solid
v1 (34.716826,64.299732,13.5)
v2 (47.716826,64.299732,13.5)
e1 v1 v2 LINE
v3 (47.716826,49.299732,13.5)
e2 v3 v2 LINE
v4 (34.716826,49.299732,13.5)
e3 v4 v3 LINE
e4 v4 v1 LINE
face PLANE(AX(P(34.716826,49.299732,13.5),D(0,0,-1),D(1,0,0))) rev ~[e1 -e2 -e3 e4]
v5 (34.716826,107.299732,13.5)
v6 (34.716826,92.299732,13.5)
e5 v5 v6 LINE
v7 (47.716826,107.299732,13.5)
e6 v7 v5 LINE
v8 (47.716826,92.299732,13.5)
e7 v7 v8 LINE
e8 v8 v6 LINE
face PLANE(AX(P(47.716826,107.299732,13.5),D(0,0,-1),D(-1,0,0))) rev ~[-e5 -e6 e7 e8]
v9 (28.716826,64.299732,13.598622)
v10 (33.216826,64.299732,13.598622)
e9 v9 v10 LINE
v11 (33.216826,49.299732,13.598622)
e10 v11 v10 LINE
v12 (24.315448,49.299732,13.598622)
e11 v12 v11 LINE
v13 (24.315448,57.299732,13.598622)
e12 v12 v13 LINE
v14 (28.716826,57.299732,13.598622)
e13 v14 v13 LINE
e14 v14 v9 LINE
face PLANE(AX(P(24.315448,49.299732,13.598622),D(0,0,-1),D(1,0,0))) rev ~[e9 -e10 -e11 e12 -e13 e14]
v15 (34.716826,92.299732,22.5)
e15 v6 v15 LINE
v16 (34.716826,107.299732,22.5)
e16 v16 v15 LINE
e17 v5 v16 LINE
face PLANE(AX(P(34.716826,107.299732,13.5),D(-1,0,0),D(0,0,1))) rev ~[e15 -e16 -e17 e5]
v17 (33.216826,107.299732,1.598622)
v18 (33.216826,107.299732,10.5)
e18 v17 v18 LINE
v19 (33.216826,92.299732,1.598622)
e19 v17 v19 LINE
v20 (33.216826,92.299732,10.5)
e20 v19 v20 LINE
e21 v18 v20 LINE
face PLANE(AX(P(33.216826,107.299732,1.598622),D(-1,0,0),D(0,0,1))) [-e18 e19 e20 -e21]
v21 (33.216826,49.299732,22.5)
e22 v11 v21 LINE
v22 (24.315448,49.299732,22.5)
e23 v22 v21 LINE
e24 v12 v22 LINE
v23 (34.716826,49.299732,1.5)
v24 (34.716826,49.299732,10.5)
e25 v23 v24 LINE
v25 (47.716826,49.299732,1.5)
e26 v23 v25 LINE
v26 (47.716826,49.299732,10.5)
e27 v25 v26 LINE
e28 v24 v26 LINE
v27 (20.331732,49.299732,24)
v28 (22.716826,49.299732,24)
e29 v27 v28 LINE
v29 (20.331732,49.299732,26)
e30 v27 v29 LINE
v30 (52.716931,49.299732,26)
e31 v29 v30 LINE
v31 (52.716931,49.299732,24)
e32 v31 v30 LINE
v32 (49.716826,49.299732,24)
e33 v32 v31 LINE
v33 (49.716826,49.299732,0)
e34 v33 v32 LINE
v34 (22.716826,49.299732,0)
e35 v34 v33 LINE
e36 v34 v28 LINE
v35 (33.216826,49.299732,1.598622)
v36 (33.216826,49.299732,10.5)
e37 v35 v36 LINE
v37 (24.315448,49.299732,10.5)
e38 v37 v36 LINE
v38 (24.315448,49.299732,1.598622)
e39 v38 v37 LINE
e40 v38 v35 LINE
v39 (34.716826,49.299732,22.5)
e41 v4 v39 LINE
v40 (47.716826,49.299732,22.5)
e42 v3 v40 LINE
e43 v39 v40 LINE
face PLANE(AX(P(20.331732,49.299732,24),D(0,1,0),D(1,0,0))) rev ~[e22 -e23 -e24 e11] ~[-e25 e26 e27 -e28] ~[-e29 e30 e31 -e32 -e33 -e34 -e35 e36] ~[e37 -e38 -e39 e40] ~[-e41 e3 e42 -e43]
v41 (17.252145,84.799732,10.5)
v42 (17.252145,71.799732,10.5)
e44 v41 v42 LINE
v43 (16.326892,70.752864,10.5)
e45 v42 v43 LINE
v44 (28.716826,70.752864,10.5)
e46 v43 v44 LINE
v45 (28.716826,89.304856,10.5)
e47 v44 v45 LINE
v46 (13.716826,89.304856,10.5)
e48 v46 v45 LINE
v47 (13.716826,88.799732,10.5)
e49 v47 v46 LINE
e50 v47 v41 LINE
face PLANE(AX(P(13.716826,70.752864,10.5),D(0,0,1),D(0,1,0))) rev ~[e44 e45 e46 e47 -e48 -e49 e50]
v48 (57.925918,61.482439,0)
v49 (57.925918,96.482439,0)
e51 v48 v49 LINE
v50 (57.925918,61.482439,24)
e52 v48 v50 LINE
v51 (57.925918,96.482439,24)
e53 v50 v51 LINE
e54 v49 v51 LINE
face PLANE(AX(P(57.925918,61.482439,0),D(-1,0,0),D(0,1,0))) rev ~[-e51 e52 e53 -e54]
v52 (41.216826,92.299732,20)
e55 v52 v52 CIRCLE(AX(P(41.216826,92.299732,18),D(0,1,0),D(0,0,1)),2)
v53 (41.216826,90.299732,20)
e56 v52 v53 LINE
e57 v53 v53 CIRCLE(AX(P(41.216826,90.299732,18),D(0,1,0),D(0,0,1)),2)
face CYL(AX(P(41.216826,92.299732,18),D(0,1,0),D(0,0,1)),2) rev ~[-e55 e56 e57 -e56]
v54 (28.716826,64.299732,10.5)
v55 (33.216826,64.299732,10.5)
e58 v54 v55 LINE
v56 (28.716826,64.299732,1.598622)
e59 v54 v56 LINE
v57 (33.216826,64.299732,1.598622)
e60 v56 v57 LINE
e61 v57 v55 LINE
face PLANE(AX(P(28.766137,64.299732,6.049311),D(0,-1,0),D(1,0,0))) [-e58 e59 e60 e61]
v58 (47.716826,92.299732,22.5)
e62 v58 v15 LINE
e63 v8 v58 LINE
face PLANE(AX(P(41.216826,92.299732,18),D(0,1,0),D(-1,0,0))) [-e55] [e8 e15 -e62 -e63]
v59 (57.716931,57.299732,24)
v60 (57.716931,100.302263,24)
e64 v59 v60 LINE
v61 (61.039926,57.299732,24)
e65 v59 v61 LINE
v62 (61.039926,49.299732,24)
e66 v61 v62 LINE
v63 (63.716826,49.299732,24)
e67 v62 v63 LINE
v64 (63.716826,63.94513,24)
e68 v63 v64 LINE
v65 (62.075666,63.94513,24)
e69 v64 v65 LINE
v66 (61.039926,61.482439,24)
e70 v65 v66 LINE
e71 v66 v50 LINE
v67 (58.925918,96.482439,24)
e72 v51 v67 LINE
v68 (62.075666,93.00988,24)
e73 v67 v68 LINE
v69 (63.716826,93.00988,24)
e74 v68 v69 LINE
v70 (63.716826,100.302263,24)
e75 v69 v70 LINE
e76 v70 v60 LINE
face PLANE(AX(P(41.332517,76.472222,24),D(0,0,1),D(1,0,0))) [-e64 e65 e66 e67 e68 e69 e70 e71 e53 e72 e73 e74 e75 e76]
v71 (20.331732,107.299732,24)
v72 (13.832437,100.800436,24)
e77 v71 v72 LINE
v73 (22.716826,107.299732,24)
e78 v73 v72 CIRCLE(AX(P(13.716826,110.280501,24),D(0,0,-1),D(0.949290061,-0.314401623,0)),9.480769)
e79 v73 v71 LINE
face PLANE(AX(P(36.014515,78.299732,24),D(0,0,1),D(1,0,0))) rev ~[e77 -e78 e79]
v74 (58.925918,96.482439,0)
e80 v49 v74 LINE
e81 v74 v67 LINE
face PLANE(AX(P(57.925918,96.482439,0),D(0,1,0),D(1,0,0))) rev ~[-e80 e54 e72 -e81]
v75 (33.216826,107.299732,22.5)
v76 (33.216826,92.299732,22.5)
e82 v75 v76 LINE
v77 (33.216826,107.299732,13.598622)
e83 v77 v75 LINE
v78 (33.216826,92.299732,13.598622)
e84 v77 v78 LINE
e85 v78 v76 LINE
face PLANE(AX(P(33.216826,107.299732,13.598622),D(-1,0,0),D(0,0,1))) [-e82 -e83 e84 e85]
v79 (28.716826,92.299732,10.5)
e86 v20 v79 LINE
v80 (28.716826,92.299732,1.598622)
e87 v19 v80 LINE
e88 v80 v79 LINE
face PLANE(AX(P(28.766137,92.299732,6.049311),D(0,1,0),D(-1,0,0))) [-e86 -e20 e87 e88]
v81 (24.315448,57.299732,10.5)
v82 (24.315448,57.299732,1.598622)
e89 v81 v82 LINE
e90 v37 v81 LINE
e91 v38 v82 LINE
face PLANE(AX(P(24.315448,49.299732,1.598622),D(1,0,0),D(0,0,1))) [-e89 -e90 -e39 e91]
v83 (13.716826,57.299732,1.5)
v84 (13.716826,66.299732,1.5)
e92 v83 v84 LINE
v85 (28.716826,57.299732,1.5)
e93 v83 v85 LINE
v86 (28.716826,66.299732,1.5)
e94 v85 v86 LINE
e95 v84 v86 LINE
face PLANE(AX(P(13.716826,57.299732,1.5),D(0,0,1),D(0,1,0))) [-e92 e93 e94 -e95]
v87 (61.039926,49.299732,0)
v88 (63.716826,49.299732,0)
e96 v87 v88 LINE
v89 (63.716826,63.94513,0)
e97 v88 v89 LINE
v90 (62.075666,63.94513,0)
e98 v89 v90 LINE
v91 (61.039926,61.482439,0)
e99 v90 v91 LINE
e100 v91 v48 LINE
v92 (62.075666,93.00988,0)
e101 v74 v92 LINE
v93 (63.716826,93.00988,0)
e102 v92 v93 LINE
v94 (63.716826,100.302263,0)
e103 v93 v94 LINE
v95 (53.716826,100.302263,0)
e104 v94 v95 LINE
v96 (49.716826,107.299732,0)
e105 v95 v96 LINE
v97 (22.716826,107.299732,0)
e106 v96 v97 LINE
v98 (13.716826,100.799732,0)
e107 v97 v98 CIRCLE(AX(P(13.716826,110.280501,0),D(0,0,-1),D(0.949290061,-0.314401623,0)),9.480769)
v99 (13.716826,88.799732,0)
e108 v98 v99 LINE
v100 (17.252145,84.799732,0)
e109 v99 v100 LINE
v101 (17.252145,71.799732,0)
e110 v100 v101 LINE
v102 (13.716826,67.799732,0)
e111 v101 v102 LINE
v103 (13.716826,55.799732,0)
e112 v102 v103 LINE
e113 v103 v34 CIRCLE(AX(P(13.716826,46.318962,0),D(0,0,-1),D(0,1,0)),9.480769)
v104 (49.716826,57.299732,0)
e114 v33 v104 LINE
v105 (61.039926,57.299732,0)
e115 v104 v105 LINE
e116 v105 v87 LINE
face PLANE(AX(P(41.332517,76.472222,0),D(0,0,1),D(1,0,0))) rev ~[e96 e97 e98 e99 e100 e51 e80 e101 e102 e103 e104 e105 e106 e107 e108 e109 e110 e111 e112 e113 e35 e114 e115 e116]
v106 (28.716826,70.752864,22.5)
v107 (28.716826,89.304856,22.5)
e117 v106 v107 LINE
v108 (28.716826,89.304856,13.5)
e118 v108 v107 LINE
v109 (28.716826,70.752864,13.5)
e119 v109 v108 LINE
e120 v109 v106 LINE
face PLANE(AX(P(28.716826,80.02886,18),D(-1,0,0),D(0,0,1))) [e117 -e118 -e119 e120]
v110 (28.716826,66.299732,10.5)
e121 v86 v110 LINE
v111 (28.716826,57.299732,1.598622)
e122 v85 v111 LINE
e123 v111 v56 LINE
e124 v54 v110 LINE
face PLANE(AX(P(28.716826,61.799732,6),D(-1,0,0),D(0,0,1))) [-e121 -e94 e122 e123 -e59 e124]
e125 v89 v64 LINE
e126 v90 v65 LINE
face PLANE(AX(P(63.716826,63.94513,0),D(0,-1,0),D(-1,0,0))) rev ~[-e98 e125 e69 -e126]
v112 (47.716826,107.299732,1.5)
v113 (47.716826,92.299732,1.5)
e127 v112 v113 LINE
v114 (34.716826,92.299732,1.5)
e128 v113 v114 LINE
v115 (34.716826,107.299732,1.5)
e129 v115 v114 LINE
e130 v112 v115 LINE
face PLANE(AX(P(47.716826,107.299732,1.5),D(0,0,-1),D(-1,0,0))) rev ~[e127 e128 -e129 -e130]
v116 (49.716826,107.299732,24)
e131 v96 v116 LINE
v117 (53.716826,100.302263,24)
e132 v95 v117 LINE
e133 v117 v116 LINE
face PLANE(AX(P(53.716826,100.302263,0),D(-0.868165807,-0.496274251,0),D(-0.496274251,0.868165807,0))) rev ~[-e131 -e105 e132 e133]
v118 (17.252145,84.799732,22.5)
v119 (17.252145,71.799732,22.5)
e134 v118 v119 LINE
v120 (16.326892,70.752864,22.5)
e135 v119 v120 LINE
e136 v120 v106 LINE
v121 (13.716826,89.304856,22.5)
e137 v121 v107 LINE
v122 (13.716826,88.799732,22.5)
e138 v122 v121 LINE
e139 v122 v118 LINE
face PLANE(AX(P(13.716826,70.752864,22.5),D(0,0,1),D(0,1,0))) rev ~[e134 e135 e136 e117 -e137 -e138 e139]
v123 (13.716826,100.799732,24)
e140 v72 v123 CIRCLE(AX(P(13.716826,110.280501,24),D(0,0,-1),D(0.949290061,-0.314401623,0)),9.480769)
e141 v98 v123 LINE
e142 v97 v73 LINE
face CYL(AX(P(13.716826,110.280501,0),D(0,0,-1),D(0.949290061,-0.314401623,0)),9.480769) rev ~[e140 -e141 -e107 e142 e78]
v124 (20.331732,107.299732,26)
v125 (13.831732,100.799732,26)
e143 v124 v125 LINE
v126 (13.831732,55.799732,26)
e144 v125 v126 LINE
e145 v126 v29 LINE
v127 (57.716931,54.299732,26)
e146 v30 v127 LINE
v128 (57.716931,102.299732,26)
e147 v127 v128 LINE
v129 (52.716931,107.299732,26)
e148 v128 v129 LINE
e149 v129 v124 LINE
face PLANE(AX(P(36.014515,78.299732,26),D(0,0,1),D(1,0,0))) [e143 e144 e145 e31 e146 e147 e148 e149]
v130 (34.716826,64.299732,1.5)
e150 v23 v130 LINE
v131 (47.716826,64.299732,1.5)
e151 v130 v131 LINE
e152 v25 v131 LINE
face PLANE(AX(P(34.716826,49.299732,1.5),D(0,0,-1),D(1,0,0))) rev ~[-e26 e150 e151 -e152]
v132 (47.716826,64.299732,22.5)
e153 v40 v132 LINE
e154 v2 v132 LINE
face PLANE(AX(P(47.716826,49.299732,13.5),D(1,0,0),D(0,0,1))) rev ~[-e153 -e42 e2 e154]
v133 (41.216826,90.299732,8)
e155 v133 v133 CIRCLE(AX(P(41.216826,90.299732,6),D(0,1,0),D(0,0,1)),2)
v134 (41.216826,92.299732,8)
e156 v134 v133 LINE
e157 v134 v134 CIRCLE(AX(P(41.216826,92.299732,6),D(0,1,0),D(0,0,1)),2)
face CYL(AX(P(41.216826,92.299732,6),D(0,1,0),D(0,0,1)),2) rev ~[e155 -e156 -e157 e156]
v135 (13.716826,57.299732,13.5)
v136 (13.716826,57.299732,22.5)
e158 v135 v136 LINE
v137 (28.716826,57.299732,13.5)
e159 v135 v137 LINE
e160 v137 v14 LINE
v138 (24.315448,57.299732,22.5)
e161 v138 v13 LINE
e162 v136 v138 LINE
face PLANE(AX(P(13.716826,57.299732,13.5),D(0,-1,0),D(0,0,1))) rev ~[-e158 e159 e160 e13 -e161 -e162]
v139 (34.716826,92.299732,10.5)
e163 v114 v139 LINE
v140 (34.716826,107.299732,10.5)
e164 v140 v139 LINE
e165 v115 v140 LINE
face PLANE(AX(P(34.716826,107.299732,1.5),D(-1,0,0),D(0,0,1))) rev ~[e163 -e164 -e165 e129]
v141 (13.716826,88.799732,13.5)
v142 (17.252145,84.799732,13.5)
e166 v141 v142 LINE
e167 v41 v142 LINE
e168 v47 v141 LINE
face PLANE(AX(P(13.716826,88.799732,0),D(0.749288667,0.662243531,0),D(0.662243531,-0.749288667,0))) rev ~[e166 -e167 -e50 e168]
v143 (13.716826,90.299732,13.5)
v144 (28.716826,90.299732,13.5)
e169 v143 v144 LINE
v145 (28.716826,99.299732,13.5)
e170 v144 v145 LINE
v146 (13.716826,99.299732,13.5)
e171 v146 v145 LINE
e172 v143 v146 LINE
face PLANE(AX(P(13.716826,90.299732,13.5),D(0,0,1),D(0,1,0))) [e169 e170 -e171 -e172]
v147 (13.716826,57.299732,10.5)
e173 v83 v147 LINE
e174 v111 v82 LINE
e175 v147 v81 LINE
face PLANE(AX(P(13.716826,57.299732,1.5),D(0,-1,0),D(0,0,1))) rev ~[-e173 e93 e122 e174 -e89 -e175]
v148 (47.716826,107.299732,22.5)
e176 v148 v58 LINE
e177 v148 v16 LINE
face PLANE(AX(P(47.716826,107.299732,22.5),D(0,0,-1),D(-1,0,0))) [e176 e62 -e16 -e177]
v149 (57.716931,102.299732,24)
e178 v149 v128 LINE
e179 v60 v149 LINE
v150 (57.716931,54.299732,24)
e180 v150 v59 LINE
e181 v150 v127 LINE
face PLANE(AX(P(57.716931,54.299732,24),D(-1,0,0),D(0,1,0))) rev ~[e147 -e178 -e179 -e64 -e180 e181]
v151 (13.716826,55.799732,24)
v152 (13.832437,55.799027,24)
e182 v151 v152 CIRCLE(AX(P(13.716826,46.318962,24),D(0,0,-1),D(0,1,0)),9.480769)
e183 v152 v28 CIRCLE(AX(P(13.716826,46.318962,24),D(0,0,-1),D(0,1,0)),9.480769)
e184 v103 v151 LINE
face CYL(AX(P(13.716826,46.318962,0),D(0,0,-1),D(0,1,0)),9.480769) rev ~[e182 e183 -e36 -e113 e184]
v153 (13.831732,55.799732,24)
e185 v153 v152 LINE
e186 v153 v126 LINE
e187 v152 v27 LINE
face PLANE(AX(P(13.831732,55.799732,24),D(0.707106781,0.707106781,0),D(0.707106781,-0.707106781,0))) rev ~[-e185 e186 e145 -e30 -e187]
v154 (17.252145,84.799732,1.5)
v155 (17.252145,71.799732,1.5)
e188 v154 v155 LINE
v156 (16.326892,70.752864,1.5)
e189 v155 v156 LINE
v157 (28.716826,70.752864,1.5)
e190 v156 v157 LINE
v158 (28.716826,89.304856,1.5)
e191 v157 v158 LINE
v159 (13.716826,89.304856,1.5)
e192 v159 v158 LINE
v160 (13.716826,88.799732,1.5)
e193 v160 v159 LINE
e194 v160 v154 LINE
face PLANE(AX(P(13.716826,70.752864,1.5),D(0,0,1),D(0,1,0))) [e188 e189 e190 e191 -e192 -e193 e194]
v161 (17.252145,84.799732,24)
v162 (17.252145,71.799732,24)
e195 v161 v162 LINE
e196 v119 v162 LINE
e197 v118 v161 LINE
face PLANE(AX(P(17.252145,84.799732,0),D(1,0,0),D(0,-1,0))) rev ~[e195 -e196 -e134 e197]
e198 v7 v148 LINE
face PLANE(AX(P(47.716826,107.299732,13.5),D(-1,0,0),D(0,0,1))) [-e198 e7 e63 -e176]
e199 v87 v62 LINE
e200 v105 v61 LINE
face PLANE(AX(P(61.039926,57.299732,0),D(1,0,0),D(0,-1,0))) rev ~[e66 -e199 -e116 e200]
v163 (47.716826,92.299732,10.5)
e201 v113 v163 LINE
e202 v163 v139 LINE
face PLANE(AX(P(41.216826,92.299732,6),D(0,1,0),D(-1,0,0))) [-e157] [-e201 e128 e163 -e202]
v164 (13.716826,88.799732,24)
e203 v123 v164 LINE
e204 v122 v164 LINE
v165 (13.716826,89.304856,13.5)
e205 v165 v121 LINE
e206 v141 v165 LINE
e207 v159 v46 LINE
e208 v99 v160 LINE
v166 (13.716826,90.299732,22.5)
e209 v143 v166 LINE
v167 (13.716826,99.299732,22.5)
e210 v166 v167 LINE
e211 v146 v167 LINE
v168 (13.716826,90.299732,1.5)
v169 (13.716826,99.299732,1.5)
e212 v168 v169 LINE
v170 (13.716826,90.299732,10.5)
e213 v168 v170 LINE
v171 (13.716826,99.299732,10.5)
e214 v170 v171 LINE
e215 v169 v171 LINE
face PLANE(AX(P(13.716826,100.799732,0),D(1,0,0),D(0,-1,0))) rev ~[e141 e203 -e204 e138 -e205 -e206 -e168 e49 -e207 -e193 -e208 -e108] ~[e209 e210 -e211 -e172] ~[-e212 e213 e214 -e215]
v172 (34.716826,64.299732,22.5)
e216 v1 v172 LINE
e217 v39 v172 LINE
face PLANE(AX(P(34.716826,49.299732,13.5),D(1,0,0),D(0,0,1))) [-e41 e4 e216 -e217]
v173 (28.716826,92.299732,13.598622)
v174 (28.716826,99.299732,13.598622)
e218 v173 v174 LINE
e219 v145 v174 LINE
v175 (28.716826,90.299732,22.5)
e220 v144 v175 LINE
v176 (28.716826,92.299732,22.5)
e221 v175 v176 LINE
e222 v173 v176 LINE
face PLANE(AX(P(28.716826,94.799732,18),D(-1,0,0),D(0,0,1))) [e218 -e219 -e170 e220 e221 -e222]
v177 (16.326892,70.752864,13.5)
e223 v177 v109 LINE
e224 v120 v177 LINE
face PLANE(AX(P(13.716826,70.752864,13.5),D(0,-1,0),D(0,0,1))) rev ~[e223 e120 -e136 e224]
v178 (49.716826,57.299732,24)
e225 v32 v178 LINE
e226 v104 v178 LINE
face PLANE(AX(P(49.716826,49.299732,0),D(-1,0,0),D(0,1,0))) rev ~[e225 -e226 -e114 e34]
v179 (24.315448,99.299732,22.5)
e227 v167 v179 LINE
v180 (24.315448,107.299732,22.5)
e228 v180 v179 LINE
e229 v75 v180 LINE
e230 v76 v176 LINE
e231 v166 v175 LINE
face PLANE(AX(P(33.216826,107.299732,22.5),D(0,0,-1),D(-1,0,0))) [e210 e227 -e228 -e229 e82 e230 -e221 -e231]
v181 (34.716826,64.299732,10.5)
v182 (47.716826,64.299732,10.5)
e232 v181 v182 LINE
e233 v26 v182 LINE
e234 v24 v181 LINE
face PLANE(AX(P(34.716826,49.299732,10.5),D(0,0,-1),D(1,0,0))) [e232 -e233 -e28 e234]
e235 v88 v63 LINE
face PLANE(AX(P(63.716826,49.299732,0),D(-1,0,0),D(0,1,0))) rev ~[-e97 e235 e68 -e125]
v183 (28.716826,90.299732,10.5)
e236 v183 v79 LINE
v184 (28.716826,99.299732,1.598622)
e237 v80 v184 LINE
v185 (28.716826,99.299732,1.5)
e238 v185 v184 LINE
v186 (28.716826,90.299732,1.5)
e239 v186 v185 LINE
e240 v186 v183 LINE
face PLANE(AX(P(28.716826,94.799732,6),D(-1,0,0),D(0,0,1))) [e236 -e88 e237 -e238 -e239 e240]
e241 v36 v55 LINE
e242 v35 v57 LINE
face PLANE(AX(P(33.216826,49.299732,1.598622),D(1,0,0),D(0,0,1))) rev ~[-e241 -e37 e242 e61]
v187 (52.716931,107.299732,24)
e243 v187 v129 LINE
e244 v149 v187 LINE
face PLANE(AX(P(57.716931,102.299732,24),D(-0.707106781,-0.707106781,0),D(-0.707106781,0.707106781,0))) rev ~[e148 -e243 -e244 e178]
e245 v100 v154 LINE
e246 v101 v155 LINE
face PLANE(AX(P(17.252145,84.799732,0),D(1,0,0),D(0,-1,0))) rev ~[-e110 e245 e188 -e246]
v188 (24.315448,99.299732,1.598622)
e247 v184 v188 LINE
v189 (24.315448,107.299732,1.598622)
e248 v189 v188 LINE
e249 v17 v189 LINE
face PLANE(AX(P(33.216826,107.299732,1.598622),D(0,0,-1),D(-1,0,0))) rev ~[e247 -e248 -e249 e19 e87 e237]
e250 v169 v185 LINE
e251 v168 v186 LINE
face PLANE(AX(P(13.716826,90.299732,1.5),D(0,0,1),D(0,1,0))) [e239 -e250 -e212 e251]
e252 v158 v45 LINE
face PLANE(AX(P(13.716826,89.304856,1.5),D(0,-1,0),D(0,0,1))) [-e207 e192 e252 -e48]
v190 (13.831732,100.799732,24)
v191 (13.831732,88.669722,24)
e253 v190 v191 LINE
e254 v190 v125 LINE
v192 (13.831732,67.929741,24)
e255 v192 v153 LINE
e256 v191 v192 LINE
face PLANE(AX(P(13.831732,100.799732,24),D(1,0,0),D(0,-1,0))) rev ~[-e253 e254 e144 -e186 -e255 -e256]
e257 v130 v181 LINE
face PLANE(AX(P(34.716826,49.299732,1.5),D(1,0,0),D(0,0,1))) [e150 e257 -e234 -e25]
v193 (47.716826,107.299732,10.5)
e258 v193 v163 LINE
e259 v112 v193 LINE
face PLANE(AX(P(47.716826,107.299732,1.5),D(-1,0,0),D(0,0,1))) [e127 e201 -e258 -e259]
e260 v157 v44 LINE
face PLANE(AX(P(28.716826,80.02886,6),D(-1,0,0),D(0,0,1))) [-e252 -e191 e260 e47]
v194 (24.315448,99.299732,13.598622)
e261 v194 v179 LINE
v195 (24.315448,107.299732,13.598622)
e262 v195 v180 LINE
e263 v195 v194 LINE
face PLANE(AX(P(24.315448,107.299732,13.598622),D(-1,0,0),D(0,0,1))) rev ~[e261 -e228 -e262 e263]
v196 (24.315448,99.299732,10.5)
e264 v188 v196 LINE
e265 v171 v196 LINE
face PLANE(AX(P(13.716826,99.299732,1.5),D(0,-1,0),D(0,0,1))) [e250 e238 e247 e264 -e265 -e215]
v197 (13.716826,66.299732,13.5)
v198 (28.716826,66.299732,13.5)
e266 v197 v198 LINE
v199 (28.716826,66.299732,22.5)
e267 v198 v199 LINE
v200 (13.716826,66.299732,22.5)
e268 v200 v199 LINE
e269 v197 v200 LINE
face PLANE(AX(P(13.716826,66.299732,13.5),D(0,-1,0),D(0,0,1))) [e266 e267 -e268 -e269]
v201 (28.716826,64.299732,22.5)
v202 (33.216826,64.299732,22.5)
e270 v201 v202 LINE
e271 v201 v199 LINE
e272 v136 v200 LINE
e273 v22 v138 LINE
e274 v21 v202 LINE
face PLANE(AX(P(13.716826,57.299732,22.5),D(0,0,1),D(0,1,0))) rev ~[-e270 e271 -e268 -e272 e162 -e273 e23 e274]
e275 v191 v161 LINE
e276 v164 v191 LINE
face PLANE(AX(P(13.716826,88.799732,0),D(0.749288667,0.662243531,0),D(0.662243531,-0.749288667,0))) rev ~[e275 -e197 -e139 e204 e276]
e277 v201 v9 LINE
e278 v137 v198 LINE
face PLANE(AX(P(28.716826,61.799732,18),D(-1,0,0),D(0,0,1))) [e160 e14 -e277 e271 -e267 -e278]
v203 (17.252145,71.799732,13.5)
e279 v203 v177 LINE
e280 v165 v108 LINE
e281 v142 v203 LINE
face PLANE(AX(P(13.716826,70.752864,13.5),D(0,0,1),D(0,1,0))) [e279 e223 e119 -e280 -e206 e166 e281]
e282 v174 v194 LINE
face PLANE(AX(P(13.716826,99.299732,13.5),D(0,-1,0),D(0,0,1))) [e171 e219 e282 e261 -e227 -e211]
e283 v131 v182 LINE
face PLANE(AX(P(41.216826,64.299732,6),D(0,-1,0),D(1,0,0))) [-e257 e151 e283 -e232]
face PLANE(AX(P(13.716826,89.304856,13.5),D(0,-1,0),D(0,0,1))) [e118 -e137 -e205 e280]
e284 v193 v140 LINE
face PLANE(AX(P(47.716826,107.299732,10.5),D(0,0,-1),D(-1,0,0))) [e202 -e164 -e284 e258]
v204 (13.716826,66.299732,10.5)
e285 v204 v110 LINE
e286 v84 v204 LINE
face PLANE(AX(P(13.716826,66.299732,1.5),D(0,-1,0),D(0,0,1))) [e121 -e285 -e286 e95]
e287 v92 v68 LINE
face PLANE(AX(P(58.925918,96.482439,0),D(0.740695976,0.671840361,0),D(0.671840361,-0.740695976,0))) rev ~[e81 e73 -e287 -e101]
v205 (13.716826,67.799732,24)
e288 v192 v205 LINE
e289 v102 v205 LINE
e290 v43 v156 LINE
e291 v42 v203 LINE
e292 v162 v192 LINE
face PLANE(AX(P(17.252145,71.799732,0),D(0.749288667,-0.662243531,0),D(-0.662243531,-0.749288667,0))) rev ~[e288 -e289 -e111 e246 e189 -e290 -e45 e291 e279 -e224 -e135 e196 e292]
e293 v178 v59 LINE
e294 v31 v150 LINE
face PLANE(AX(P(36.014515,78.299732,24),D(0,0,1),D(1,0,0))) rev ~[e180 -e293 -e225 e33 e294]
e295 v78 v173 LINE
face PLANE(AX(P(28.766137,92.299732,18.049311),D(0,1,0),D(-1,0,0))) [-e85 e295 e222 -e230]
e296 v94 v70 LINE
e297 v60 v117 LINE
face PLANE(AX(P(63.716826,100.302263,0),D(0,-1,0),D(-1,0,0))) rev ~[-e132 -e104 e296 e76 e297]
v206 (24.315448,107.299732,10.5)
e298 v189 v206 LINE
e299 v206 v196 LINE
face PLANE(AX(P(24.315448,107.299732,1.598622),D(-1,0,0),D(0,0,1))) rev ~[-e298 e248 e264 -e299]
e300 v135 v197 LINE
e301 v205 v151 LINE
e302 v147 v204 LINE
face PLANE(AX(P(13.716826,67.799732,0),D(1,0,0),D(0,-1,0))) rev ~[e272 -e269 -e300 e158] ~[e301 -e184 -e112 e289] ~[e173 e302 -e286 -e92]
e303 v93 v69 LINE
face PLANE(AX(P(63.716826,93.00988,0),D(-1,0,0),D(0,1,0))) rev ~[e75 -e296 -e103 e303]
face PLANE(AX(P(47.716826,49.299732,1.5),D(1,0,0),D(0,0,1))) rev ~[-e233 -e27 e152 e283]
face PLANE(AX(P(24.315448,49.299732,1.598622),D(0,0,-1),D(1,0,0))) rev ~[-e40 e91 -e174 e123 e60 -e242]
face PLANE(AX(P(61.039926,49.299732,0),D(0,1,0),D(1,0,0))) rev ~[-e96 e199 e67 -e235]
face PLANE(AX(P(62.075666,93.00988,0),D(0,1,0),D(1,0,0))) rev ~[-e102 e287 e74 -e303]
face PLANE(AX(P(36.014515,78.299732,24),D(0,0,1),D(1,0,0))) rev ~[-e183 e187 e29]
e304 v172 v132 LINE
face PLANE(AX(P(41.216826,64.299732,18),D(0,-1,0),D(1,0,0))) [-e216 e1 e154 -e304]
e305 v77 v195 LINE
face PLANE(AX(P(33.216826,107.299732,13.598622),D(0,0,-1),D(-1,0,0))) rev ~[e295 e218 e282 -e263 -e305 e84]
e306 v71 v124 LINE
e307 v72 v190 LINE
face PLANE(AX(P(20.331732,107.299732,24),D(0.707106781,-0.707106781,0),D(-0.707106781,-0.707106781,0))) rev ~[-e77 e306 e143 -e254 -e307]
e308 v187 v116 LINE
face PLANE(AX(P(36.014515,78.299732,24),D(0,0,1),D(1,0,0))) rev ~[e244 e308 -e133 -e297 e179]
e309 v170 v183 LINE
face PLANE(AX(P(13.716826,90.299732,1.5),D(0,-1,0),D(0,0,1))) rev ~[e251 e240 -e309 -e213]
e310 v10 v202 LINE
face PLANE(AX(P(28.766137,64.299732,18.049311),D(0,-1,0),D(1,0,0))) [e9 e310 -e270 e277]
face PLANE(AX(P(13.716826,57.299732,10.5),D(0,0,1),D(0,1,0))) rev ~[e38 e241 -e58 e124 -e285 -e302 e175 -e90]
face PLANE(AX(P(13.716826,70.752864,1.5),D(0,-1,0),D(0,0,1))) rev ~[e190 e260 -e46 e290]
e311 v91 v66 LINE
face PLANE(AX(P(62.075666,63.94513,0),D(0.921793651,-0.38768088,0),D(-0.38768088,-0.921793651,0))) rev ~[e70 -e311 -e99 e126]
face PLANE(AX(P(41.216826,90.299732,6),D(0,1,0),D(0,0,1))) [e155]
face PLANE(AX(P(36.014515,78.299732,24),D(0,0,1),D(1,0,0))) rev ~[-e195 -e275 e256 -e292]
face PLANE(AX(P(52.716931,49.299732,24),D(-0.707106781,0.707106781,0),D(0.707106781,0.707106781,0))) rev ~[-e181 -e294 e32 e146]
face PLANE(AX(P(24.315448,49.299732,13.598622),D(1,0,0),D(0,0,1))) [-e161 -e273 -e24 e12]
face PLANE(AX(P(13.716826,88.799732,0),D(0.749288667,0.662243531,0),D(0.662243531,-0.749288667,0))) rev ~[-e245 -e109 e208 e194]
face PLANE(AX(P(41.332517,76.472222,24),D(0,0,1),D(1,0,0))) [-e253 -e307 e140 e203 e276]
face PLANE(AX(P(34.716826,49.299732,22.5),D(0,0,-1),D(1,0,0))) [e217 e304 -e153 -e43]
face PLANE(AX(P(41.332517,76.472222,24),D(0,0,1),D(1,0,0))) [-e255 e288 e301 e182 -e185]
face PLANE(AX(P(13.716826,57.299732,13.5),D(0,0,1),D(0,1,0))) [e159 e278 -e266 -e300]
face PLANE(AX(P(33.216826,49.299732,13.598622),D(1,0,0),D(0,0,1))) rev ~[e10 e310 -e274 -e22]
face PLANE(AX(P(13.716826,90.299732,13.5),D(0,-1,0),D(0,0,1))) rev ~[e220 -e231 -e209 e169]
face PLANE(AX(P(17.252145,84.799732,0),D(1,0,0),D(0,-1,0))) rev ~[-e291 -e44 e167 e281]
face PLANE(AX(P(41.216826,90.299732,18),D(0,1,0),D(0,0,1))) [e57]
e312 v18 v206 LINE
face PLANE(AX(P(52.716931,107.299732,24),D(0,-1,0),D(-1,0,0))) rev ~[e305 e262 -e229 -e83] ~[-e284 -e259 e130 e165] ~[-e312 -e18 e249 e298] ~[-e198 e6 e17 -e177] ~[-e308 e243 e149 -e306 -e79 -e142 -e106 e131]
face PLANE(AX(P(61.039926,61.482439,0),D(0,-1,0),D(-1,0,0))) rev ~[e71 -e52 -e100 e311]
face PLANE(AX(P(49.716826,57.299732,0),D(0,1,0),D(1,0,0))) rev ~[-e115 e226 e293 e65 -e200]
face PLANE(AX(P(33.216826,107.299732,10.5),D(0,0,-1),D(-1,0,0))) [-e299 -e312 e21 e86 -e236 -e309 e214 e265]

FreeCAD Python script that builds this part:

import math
import FreeCAD as App
import Part
import Sketcher

V = App.Vector
Q = App.Units.Quantity


def add_polygon(sketch, points):
    """Adds a closed chain of lines whose ends are joined by coincident constraints."""
    first, n = sketch.GeometryCount, len(points)
    for a, b in zip(points, points[1:] + points[:1]):
        sketch.addGeometry(Part.LineSegment(App.Vector(*a, 0), App.Vector(*b, 0)), False)
    for i in range(n):
        sketch.addConstraint(Sketcher.Constraint("Coincident", first + i, 2, first + (i + 1) % n, 1))

doc = App.newDocument("Part")
params = doc.addObject("Spreadsheet::Sheet", "Params")
for row, (alias, value) in enumerate([
    ("sketch1_width", "27 mm"),
    ("sketch1_width2", "1 mm"),
    ("sketch1_width3", "10 mm"),
    ("sketch1_height", "12 mm"),
    ("sketch1_height2", "13 mm"),
    ("pad1_length", "24 mm"),
    ("sketch2_width", "13 mm"),
    ("sketch2_height", "9 mm"),
    ("pocket1_length", "15 mm"),
    ("sketch3_diameter", "4 mm"),
    ("pocket2_length", "2 mm"),
    ("sketch4_width", "13 mm"),
    ("sketch4_height", "9 mm"),
    ("pocket3_length", "15 mm"),
    ("sketch5_width", "9 mm"),
    ("pocket4_length", "15 mm"),
    ("sketch6_height", "48 mm"),
    ("sketch6_height2", "45 mm"),
    ("pad2_length", "2 mm"),
], start=1):
    params.set(f"A{row}", alias)
    params.set(f"B{row}", "=" + value)
    params.setAlias(f"B{row}", alias)

body = doc.addObject("PartDesign::Body", "Body")

sketch1 = doc.addObject("Sketcher::SketchObject", "Sketch")
body.addObject(sketch1)
sketch1.AttachmentSupport = (doc.XY_Plane, [""])
sketch1.MapMode = "FlatFace"
sketch1.addGeometry(Part.LineSegment(V(53.7, 100.3, 0), V(49.7, 107.3, 0)), False)
sketch1.addGeometry(Part.LineSegment(V(49.7, 107.3, 0), V(22.7, 107.3, 0)), False)
sketch1.addGeometry(Part.ArcOfCircle(Part.Circle(V(13.7, 110.3, 0), V(0, 0, 1), 9.5), math.radians(-90), math.radians(-18)), False)
sketch1.addGeometry(Part.LineSegment(V(13.7, 100.8, 0), V(13.7, 88.8, 0)), False)
sketch1.addGeometry(Part.LineSegment(V(13.7, 88.8, 0), V(17.3, 84.8, 0)), False)
sketch1.addGeometry(Part.LineSegment(V(17.3, 84.8, 0), V(17.3, 71.8, 0)), False)
sketch1.addGeometry(Part.LineSegment(V(17.3, 71.8, 0), V(13.7, 67.8, 0)), False)
sketch1.addGeometry(Part.LineSegment(V(13.7, 67.8, 0), V(13.7, 55.8, 0)), False)
sketch1.addGeometry(Part.ArcOfCircle(Part.Circle(V(13.7, 46.3, 0), V(0, 0, 1), 9.5), math.radians(18), math.radians(90)), False)
sketch1.addGeometry(Part.LineSegment(V(22.7, 49.3, 0), V(49.7, 49.3, 0)), False)
sketch1.addGeometry(Part.LineSegment(V(49.7, 49.3, 0), V(49.7, 57.3, 0)), False)
sketch1.addGeometry(Part.LineSegment(V(49.7, 57.3, 0), V(61, 57.3, 0)), False)
sketch1.addGeometry(Part.LineSegment(V(61, 57.3, 0), V(61, 49.3, 0)), False)
sketch1.addGeometry(Part.LineSegment(V(61, 49.3, 0), V(63.7, 49.3, 0)), False)
sketch1.addGeometry(Part.LineSegment(V(63.7, 49.3, 0), V(63.7, 63.9, 0)), False)
sketch1.addGeometry(Part.LineSegment(V(63.7, 63.9, 0), V(62.1, 63.9, 0)), False)
sketch1.addGeometry(Part.LineSegment(V(62.1, 63.9, 0), V(61, 61.5, 0)), False)
sketch1.addGeometry(Part.LineSegment(V(61, 61.5, 0), V(57.9, 61.5, 0)), False)
sketch1.addGeometry(Part.LineSegment(V(57.9, 61.5, 0), V(57.9, 96.5, 0)), False)
sketch1.addGeometry(Part.LineSegment(V(57.9, 96.5, 0), V(58.9, 96.5, 0)), False)
sketch1.addGeometry(Part.LineSegment(V(58.9, 96.5, 0), V(62.1, 93, 0)), False)
sketch1.addGeometry(Part.LineSegment(V(62.1, 93, 0), V(63.7, 93, 0)), False)
sketch1.addGeometry(Part.LineSegment(V(63.7, 93, 0), V(63.7, 100.3, 0)), False)
sketch1.addGeometry(Part.LineSegment(V(63.7, 100.3, 0), V(53.7, 100.3, 0)), False)
sketch1.addConstraint(Sketcher.Constraint("Coincident", 0, 2, 1, 1))
sketch1.addConstraint(Sketcher.Constraint("Coincident", 1, 2, 2, 2))
sketch1.addConstraint(Sketcher.Constraint("Coincident", 2, 1, 3, 1))
sketch1.addConstraint(Sketcher.Constraint("Coincident", 3, 2, 4, 1))
sketch1.addConstraint(Sketcher.Constraint("Coincident", 4, 2, 5, 1))
sketch1.addConstraint(Sketcher.Constraint("Coincident", 5, 2, 6, 1))
sketch1.addConstraint(Sketcher.Constraint("Coincident", 6, 2, 7, 1))
sketch1.addConstraint(Sketcher.Constraint("Coincident", 7, 2, 8, 2))
sketch1.addConstraint(Sketcher.Constraint("Coincident", 8, 1, 9, 1))
sketch1.addConstraint(Sketcher.Constraint("Coincident", 9, 2, 10, 1))
sketch1.addConstraint(Sketcher.Constraint("Coincident", 10, 2, 11, 1))
sketch1.addConstraint(Sketcher.Constraint("Coincident", 11, 2, 12, 1))
sketch1.addConstraint(Sketcher.Constraint("Coincident", 12, 2, 13, 1))
sketch1.addConstraint(Sketcher.Constraint("Coincident", 13, 2, 14, 1))
sketch1.addConstraint(Sketcher.Constraint("Coincident", 14, 2, 15, 1))
sketch1.addConstraint(Sketcher.Constraint("Coincident", 15, 2, 16, 1))
sketch1.addConstraint(Sketcher.Constraint("Coincident", 16, 2, 17, 1))
sketch1.addConstraint(Sketcher.Constraint("Coincident", 17, 2, 18, 1))
sketch1.addConstraint(Sketcher.Constraint("Coincident", 18, 2, 19, 1))
sketch1.addConstraint(Sketcher.Constraint("Coincident", 19, 2, 20, 1))
sketch1.addConstraint(Sketcher.Constraint("Coincident", 20, 2, 21, 1))
sketch1.addConstraint(Sketcher.Constraint("Coincident", 21, 2, 22, 1))
sketch1.addConstraint(Sketcher.Constraint("Coincident", 22, 2, 23, 1))
sketch1.addConstraint(Sketcher.Constraint("Coincident", 23, 2, 0, 1))
sketch1.addConstraint(Sketcher.Constraint("Horizontal", 1))
sketch1.addConstraint(Sketcher.Constraint("Vertical", 3))
sketch1.addConstraint(Sketcher.Constraint("Vertical", 5))
sketch1.addConstraint(Sketcher.Constraint("Vertical", 7))
sketch1.addConstraint(Sketcher.Constraint("Horizontal", 9))
sketch1.addConstraint(Sketcher.Constraint("Vertical", 10))
sketch1.addConstraint(Sketcher.Constraint("Horizontal", 11))
sketch1.addConstraint(Sketcher.Constraint("Vertical", 12))
sketch1.addConstraint(Sketcher.Constraint("Horizontal", 13))
sketch1.addConstraint(Sketcher.Constraint("Vertical", 14))
sketch1.addConstraint(Sketcher.Constraint("Horizontal", 15))
sketch1.addConstraint(Sketcher.Constraint("Horizontal", 17))
sketch1.addConstraint(Sketcher.Constraint("Vertical", 18))
sketch1.addConstraint(Sketcher.Constraint("Horizontal", 19))
sketch1.addConstraint(Sketcher.Constraint("Horizontal", 21))
sketch1.addConstraint(Sketcher.Constraint("Vertical", 22))
sketch1.addConstraint(Sketcher.Constraint("Horizontal", 23))
sketch1.addConstraint(Sketcher.Constraint("Equal", 2, 8))
sketch1.addConstraint(Sketcher.Constraint("Horizontal", 9, 2, 12, 2))
sketch1.addConstraint(Sketcher.Constraint("Vertical", 2, 3, 8, 3))
sketch1.addConstraint(Sketcher.Constraint("Vertical", 8, 3, 2, 1))
sketch1.addConstraint(Sketcher.Constraint("Vertical", 3, 2, 6, 2))
sketch1.addConstraint(Sketcher.Constraint("Vertical", 1, 2, 8, 1))
sketch1.addConstraint(Sketcher.Constraint("Vertical", 0, 2, 9, 2))
sketch1.addConstraint(Sketcher.Constraint("Vertical", 12, 2, 16, 2))
sketch1.addConstraint(Sketcher.Constraint("Vertical", 15, 2, 20, 2))
sketch1.addConstraint(Sketcher.Constraint("Vertical", 14, 2, 21, 2))
sketch1.addConstraint(Sketcher.Constraint("Equal", 3, 7))
sketch1.addConstraint(Sketcher.Constraint("Equal", 4, 6))
sketch1.addConstraint(Sketcher.Constraint("DistanceX", 1, 2, 1, 1, Q("27 mm")))
sketch1.addConstraint(Sketcher.Constraint("DistanceX", 19, 1, 19, 2, Q("1 mm")))
sketch1.addConstraint(Sketcher.Constraint("DistanceX", 23, 2, 23, 1, Q("10 mm")))
sketch1.addConstraint(Sketcher.Constraint("DistanceY", 3, 2, 3, 1, Q("12 mm")))
sketch1.addConstraint(Sketcher.Constraint("DistanceY", 5, 2, 5, 1, Q("13 mm")))
sketch1.addConstraint(Sketcher.Constraint("DistanceY", 10, 1, 10, 2, Q("8 mm")))
sketch1.addConstraint(Sketcher.Constraint("DistanceY", 18, 1, 18, 2, Q("35 mm")))
sketch1.addConstraint(Sketcher.Constraint("DistanceX", 2, 3, 0, 2, Q("36 mm")))
sketch1.addConstraint(Sketcher.Constraint("DistanceY", 4, 2, 3, 2, Q("4 mm")))
sketch1.addConstraint(Sketcher.Constraint("DistanceX", 9, 2, 13, 2, Q("14 mm")))
sketch1.addConstraint(Sketcher.Constraint("DistanceY", 2, 1, 1, 2, Q("6.5 mm")))
sketch1.addConstraint(Sketcher.Constraint("DistanceX", 11, 1, 11, 2, Q("11.3231 mm")))
sketch1.addConstraint(Sketcher.Constraint("DistanceY", 14, 1, 14, 2, Q("14.645399 mm")))
sketch1.addConstraint(Sketcher.Constraint("DistanceX", 15, 2, 15, 1, Q("1.64116 mm")))
sketch1.addConstraint(Sketcher.Constraint("DistanceX", 17, 2, 17, 1, Q("3.114008 mm")))
sketch1.addConstraint(Sketcher.Constraint("DistanceY", -1, 1, 2, 3, Q("110.280501 mm")))
sketch1.addConstraint(Sketcher.Constraint("Distance", 0, Q("8.06006 mm")))
sketch1.addConstraint(Sketcher.Constraint("Distance", 16, Q("2.671629 mm")))
sketch1.addConstraint(Sketcher.Constraint("Distance", 20, Q("4.688239 mm")))
sketch1.addConstraint(Sketcher.Constraint("DistanceX", -1, 1, 17, 2, Q("57.925918 mm")))
sketch1.addConstraint(Sketcher.Constraint("DistanceX", 3, 2, 4, 2, Q("3.535319 mm")))
sketch1.setExpression("Constraints[53]", "Params.sketch1_width")
sketch1.setExpression("Constraints[54]", "Params.sketch1_width2")
sketch1.setExpression("Constraints[55]", "Params.sketch1_width3")
sketch1.setExpression("Constraints[56]", "Params.sketch1_height")
sketch1.setExpression("Constraints[57]", "Params.sketch1_height2")
pad1 = doc.addObject("PartDesign::Pad", "Pad")
body.addObject(pad1)
pad1.Profile = sketch1
pad1.setExpression("Length", "Params.pad1_length")

sketch2 = doc.addObject("Sketcher::SketchObject", "Sketch001")
body.addObject(sketch2)
sketch2.AttachmentSupport = (doc.XZ_Plane, [""])
sketch2.MapMode = "FlatFace"
sketch2.AttachmentOffset = App.Placement(V(0, 0, -107.299732), App.Rotation())
add_polygon(sketch2, [(33, 10), (33, 2), (24, 2), (24, 10)])
add_polygon(sketch2, [(33, 22), (33, 14), (24, 14), (24, 22)])
add_polygon(sketch2, [(48, 22), (48, 14), (35, 14), (35, 22)])
add_polygon(sketch2, [(48, 10), (48, 2), (35, 2), (35, 10)])
sketch2.addConstraint(Sketcher.Constraint("Vertical", 0))
sketch2.addConstraint(Sketcher.Constraint("Horizontal", 1))
sketch2.addConstraint(Sketcher.Constraint("Vertical", 2))
sketch2.addConstraint(Sketcher.Constraint("Horizontal", 3))
sketch2.addConstraint(Sketcher.Constraint("Vertical", 4))
sketch2.addConstraint(Sketcher.Constraint("Horizontal", 5))
sketch2.addConstraint(Sketcher.Constraint("Vertical", 6))
sketch2.addConstraint(Sketcher.Constraint("Horizontal", 7))
sketch2.addConstraint(Sketcher.Constraint("Vertical", 8))
sketch2.addConstraint(Sketcher.Constraint("Horizontal", 9))
sketch2.addConstraint(Sketcher.Constraint("Vertical", 10))
sketch2.addConstraint(Sketcher.Constraint("Horizontal", 11))
sketch2.addConstraint(Sketcher.Constraint("Vertical", 12))
sketch2.addConstraint(Sketcher.Constraint("Horizontal", 13))
sketch2.addConstraint(Sketcher.Constraint("Vertical", 14))
sketch2.addConstraint(Sketcher.Constraint("Horizontal", 15))
sketch2.addConstraint(Sketcher.Constraint("Horizontal", 7, 2, 10, 2))
sketch2.addConstraint(Sketcher.Constraint("Horizontal", 3, 2, 14, 2))
sketch2.addConstraint(Sketcher.Constraint("Vertical", 3, 2, 4, 2))
sketch2.addConstraint(Sketcher.Constraint("Vertical", 2, 2, 5, 2))
sketch2.addConstraint(Sketcher.Constraint("Vertical", 11, 2, 12, 2))
sketch2.addConstraint(Sketcher.Constraint("Vertical", 10, 2, 13, 2))
sketch2.addConstraint(Sketcher.Constraint("Equal", 7, 0))
sketch2.addConstraint(Sketcher.Constraint("Equal", 2, 4))
sketch2.addConstraint(Sketcher.Constraint("Equal", 10, 12))
sketch2.addConstraint(Sketcher.Constraint("DistanceX", 9, 2, 9, 1, Q("13 mm")))
sketch2.addConstraint(Sketcher.Constraint("DistanceY", 8, 2, 8, 1, Q("9 mm")))
sketch2.addConstraint(Sketcher.Constraint("DistanceY", 0, 2, 4, 2, Q("12 mm")))
sketch2.addConstraint(Sketcher.Constraint("DistanceY", -1, 1, 2, 2, Q("10.5 mm")))
sketch2.addConstraint(Sketcher.Constraint("DistanceX", 4, 2, 8, 2, Q("14.5 mm")))
sketch2.addConstraint(Sketcher.Constraint("DistanceX", 1, 2, 1, 1, Q("8.901378 mm")))
sketch2.addConstraint(Sketcher.Constraint("DistanceX", -1, 1, 1, 2, Q("24.315448 mm")))
sketch2.setExpression("Constraints[41]", "Params.sketch2_width")
sketch2.setExpression("Constraints[42]", "Params.sketch2_height")
pocket1 = doc.addObject("PartDesign::Pocket", "Pocket")
body.addObject(pocket1)
pocket1.Profile = sketch2
pocket1.setExpression("Length", "Params.pocket1_length")
pocket1.Reversed = True

sketch3 = doc.addObject("Sketcher::SketchObject", "Sketch002")
body.addObject(sketch3)
sketch3.AttachmentSupport = (doc.XZ_Plane, [""])
sketch3.MapMode = "FlatFace"
sketch3.AttachmentOffset = App.Placement(V(0, 0, -92.299732), App.Rotation())
sketch3.addGeometry(Part.Circle(V(41.2, 18, 0), V(0, 0, 1), 2), False)
sketch3.addGeometry(Part.Circle(V(41.2, 6, 0), V(0, 0, 1), 2), False)
sketch3.addConstraint(Sketcher.Constraint("Equal", 0, 1))
sketch3.addConstraint(Sketcher.Constraint("Vertical", 0, 3, 1, 3))
sketch3.addConstraint(Sketcher.Constraint("Diameter", 0, Q("4 mm")))
sketch3.addConstraint(Sketcher.Constraint("DistanceY", -1, 1, 0, 3, Q("18 mm")))
sketch3.addConstraint(Sketcher.Constraint("DistanceY", -1, 1, 1, 3, Q("6 mm")))
sketch3.addConstraint(Sketcher.Constraint("DistanceX", -1, 1, 0, 3, Q("41.216826 mm")))
sketch3.setExpression("Constraints[2]", "Params.sketch3_diameter")
pocket2 = doc.addObject("PartDesign::Pocket", "Pocket001")
body.addObject(pocket2)
pocket2.Profile = sketch3
pocket2.setExpression("Length", "Params.pocket2_length")
pocket2.Reversed = True

sketch4 = doc.addObject("Sketcher::SketchObject", "Sketch003")
body.addObject(sketch4)
sketch4.AttachmentSupport = (doc.XZ_Plane, [""])
sketch4.MapMode = "FlatFace"
sketch4.AttachmentOffset = App.Placement(V(0, 0, -49.299732), App.Rotation())
add_polygon(sketch4, [(24, 10), (24, 2), (33, 2), (33, 10)])
add_polygon(sketch4, [(35, 10), (35, 2), (48, 2), (48, 10)])
add_polygon(sketch4, [(35, 22), (35, 14), (48, 14), (48, 22)])
add_polygon(sketch4, [(24, 22), (24, 14), (33, 14), (33, 22)])
sketch4.addConstraint(Sketcher.Constraint("Vertical", 0))
sketch4.addConstraint(Sketcher.Constraint("Horizontal", 1))
sketch4.addConstraint(Sketcher.Constraint("Vertical", 2))
sketch4.addConstraint(Sketcher.Constraint("Horizontal", 3))
sketch4.addConstraint(Sketcher.Constraint("Vertical", 4))
sketch4.addConstraint(Sketcher.Constraint("Horizontal", 5))
sketch4.addConstraint(Sketcher.Constraint("Vertical", 6))
sketch4.addConstraint(Sketcher.Constraint("Horizontal", 7))
sketch4.addConstraint(Sketcher.Constraint("Vertical", 8))
sketch4.addConstraint(Sketcher.Constraint("Horizontal", 9))
sketch4.addConstraint(Sketcher.Constraint("Vertical", 10))
sketch4.addConstraint(Sketcher.Constraint("Horizontal", 11))
sketch4.addConstraint(Sketcher.Constraint("Vertical", 12))
sketch4.addConstraint(Sketcher.Constraint("Horizontal", 13))
sketch4.addConstraint(Sketcher.Constraint("Vertical", 14))
sketch4.addConstraint(Sketcher.Constraint("Horizontal", 15))
sketch4.addConstraint(Sketcher.Constraint("Horizontal", 3, 2, 6, 2))
sketch4.addConstraint(Sketcher.Constraint("Horizontal", 11, 2, 14, 2))
sketch4.addConstraint(Sketcher.Constraint("Vertical", 7, 2, 8, 2))
sketch4.addConstraint(Sketcher.Constraint("Vertical", 6, 2, 9, 2))
sketch4.addConstraint(Sketcher.Constraint("Vertical", 3, 2, 12, 2))
sketch4.addConstraint(Sketcher.Constraint("Vertical", 2, 2, 13, 2))
sketch4.addConstraint(Sketcher.Constraint("Equal", 15, 0))
sketch4.addConstraint(Sketcher.Constraint("Equal", 6, 8))
sketch4.addConstraint(Sketcher.Constraint("Equal", 2, 12))
sketch4.addConstraint(Sketcher.Constraint("DistanceX", 5, 1, 5, 2, Q("13 mm")))
sketch4.addConstraint(Sketcher.Constraint("DistanceY", 4, 2, 4, 1, Q("9 mm")))
sketch4.addConstraint(Sketcher.Constraint("DistanceY", 7, 2, 8, 2, Q("3 mm")))
sketch4.addConstraint(Sketcher.Constraint("DistanceY", -1, 1, 2, 2, Q("10.5 mm")))
sketch4.addConstraint(Sketcher.Constraint("DistanceX", 1, 2, 4, 2, Q("1.5 mm")))
sketch4.addConstraint(Sketcher.Constraint("DistanceX", 1, 1, 1, 2, Q("8.901378 mm")))
sketch4.addConstraint(Sketcher.Constraint("DistanceX", -1, 1, 0, 2, Q("24.315448 mm")))
sketch4.setExpression("Constraints[41]", "Params.sketch4_width")
sketch4.setExpression("Constraints[42]", "Params.sketch4_height")
pocket3 = doc.addObject("PartDesign::Pocket", "Pocket002")
body.addObject(pocket3)
pocket3.Profile = sketch4
pocket3.setExpression("Length", "Params.pocket3_length")

sketch5 = doc.addObject("Sketcher::SketchObject", "Sketch004")
body.addObject(sketch5)
sketch5.AttachmentSupport = (doc.YZ_Plane, [""])
sketch5.MapMode = "FlatFace"
sketch5.AttachmentOffset = App.Placement(V(0, 0, 13.716826), App.Rotation())
add_polygon(sketch5, [(99, 14), (90, 14), (90, 22), (99, 22)])
add_polygon(sketch5, [(66, 14), (57, 14), (57, 22), (66, 22)])
add_polygon(sketch5, [(99, 2), (90, 2), (90, 10), (99, 10)])
add_polygon(sketch5, [(66, 2), (57, 2), (57, 10), (66, 10)])
add_polygon(sketch5, [(89, 2), (71, 2), (71, 10), (89, 10)])
add_polygon(sketch5, [(89, 14), (71, 14), (71, 22), (89, 22)])
sketch5.addConstraint(Sketcher.Constraint("Horizontal", 0))
sketch5.addConstraint(Sketcher.Constraint("Vertical", 1))
sketch5.addConstraint(Sketcher.Constraint("Horizontal", 2))
sketch5.addConstraint(Sketcher.Constraint("Vertical", 3))
sketch5.addConstraint(Sketcher.Constraint("Horizontal", 4))
sketch5.addConstraint(Sketcher.Constraint("Vertical", 5))
sketch5.addConstraint(Sketcher.Constraint("Horizontal", 6))
sketch5.addConstraint(Sketcher.Constraint("Vertical", 7))
sketch5.addConstraint(Sketcher.Constraint("Horizontal", 8))
sketch5.addConstraint(Sketcher.Constraint("Vertical", 9))
sketch5.addConstraint(Sketcher.Constraint("Horizontal", 10))
sketch5.addConstraint(Sketcher.Constraint("Vertical", 11))
sketch5.addConstraint(Sketcher.Constraint("Horizontal", 12))
sketch5.addConstraint(Sketcher.Constraint("Vertical", 13))
sketch5.addConstraint(Sketcher.Constraint("Horizontal", 14))
sketch5.addConstraint(Sketcher.Constraint("Vertical", 15))
sketch5.addConstraint(Sketcher.Constraint("Horizontal", 16))
sketch5.addConstraint(Sketcher.Constraint("Vertical", 17))
sketch5.addConstraint(Sketcher.Constraint("Horizontal", 18))
sketch5.addConstraint(Sketcher.Constraint("Vertical", 19))
sketch5.addConstraint(Sketcher.Constraint("Horizontal", 20))
sketch5.addConstraint(Sketcher.Constraint("Vertical", 21))
sketch5.addConstraint(Sketcher.Constraint("Horizontal", 22))
sketch5.addConstraint(Sketcher.Constraint("Vertical", 23))
sketch5.addConstraint(Sketcher.Constraint("Horizontal", 3, 2, 4, 2))
sketch5.addConstraint(Sketcher.Constraint("Horizontal", 2, 2, 5, 2))
sketch5.addConstraint(Sketcher.Constraint("Horizontal", 11, 2, 12, 2))
sketch5.addConstraint(Sketcher.Constraint("Horizontal", 10, 2, 13, 2))
sketch5.addConstraint(Sketcher.Constraint("Horizontal", 15, 2, 16, 2))
sketch5.addConstraint(Sketcher.Constraint("Horizontal", 14, 2, 17, 2))
sketch5.addConstraint(Sketcher.Constraint("Horizontal", 7, 2, 20, 2))
sketch5.addConstraint(Sketcher.Constraint("Horizontal", 6, 2, 21, 2))
sketch5.addConstraint(Sketcher.Constraint("Vertical", 1, 2, 8, 2))
sketch5.addConstraint(Sketcher.Constraint("Vertical", 3, 2, 10, 2))
sketch5.addConstraint(Sketcher.Constraint("Vertical", 5, 2, 12, 2))
sketch5.addConstraint(Sketcher.Constraint("Vertical", 7, 2, 14, 2))
sketch5.addConstraint(Sketcher.Constraint("Vertical", 17, 2, 20, 2))
sketch5.addConstraint(Sketcher.Constraint("Vertical", 19, 2, 22, 2))
sketch5.addConstraint(Sketcher.Constraint("Equal", 2, 4))
sketch5.addConstraint(Sketcher.Constraint("Equal", 14, 1))
sketch5.addConstraint(Sketcher.Constraint("Equal", 7, 9))
sketch5.addConstraint(Sketcher.Constraint("DistanceX", 0, 2, 0, 1, Q("9 mm")))
sketch5.addConstraint(Sketcher.Constraint("DistanceX", 4, 2, 0, 2, Q("33 mm")))
sketch5.addConstraint(Sketcher.Constraint("DistanceY", 8, 2, 0, 2, Q("12 mm")))
sketch5.addConstraint(Sketcher.Constraint("DistanceY", -1, 1, 0, 2, Q("13.5 mm")))
sketch5.addConstraint(Sketcher.Constraint("DistanceX", 16, 2, 16, 1, Q("18.551992 mm")))
sketch5.addConstraint(Sketcher.Constraint("DistanceX", -1, 1, 0, 2, Q("90.299732 mm")))
sketch5.addConstraint(Sketcher.Constraint("DistanceX", -1, 1, 16, 2, Q("70.752864 mm")))
sketch5.setExpression("Constraints[65]", "Params.sketch5_width")
pocket4 = doc.addObject("PartDesign::Pocket", "Pocket003")
body.addObject(pocket4)
pocket4.Profile = sketch5
pocket4.setExpression("Length", "Params.pocket4_length")
pocket4.Reversed = True

sketch6 = doc.addObject("Sketcher::SketchObject", "Sketch005")
body.addObject(sketch6)
sketch6.AttachmentSupport = (doc.XY_Plane, [""])
sketch6.MapMode = "FlatFace"
sketch6.AttachmentOffset = App.Placement(V(0, 0, 24), App.Rotation())
add_polygon(sketch6, [(20, 49), (53, 49), (58, 54), (58, 102), (53, 107), (20, 107), (14, 101), (14, 56)])
sketch6.addConstraint(Sketcher.Constraint("Horizontal", 0))
sketch6.addConstraint(Sketcher.Constraint("Vertical", 2))
sketch6.addConstraint(Sketcher.Constraint("Horizontal", 4))
sketch6.addConstraint(Sketcher.Constraint("Vertical", 6))
sketch6.addConstraint(Sketcher.Constraint("Perpendicular", 1, 3))
sketch6.addConstraint(Sketcher.Constraint("Perpendicular", 3, 5))
sketch6.addConstraint(Sketcher.Constraint("Perpendicular", 5, 7))
sketch6.addConstraint(Sketcher.Constraint("Vertical", 0, 2, 3, 2))
sketch6.addConstraint(Sketcher.Constraint("Vertical", 4, 2, 7, 2))
sketch6.addConstraint(Sketcher.Constraint("Equal", 1, 3))
sketch6.addConstraint(Sketcher.Constraint("DistanceY", 2, 1, 2, 2, Q("48 mm")))
sketch6.addConstraint(Sketcher.Constraint("DistanceY", 6, 2, 6, 1, Q("45 mm")))
sketch6.addConstraint(Sketcher.Constraint("DistanceX", 0, 2, 1, 2, Q("5 mm")))
sketch6.addConstraint(Sketcher.Constraint("DistanceX", 0, 1, 0, 2, Q("32.385199 mm")))
sketch6.addConstraint(Sketcher.Constraint("DistanceX", -1, 1, 0, 2, Q("52.716931 mm")))
sketch6.addConstraint(Sketcher.Constraint("DistanceY", -1, 1, 0, 2, Q("49.299732 mm")))
sketch6.setExpression("Constraints[18]", "Params.sketch6_height")
sketch6.setExpression("Constraints[19]", "Params.sketch6_height2")
pad2 = doc.addObject("PartDesign::Pad", "Pad001")
body.addObject(pad2)
pad2.Profile = sketch6
pad2.setExpression("Length", "Params.pad2_length")

doc.recompute()
